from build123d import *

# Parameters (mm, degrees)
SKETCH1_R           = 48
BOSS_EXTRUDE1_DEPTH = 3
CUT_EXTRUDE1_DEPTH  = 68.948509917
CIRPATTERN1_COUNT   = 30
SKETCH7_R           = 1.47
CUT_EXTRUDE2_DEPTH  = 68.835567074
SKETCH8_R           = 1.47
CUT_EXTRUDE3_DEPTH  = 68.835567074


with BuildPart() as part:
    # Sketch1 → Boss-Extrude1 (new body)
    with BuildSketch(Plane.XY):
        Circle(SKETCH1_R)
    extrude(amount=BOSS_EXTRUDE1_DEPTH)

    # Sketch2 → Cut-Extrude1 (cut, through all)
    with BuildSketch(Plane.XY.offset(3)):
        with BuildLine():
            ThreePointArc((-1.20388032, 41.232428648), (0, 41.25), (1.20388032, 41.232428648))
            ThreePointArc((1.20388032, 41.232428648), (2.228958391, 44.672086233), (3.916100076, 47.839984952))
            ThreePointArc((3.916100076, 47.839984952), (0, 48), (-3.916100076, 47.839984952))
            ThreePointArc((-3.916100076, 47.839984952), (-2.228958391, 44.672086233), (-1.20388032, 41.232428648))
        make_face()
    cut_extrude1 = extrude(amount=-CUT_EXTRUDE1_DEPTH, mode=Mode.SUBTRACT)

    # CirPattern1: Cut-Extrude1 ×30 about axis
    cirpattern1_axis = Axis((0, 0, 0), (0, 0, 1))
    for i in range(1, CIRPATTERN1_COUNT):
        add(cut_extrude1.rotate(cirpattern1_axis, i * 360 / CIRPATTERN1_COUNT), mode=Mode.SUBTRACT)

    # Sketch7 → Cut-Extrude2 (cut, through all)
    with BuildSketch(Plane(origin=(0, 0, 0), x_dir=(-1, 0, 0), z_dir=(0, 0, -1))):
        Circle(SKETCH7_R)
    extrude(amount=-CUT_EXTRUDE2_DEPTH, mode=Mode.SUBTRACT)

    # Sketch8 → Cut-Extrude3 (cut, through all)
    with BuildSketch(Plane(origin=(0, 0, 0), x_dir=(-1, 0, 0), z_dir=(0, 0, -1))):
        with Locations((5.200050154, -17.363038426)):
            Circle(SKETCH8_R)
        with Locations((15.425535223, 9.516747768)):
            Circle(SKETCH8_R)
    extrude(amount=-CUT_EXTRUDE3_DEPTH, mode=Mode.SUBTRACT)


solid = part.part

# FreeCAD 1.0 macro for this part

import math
import FreeCAD as App
import Part
import Sketcher

V = App.Vector
Q = App.Units.Quantity

doc = App.newDocument("Part")
body = doc.addObject("PartDesign::Body", "Body")

sketch1 = body.newObject("Sketcher::SketchObject", "Sketch")
sketch1.AttachmentSupport = (doc.getObject("XY_Plane"), [""])
sketch1.MapMode = "FlatFace"
sketch1.addGeometry(Part.Circle(V(0, 0, 0), V(0, 0, 1), 48), False)
sketch1.addConstraint([
    Sketcher.Constraint("Coincident", 0, 3, -1, 1),
    Sketcher.Constraint("Diameter", 0, Q("96 mm")),
])
pad1 = body.newObject("PartDesign::Pad", "Pad")
pad1.Profile = sketch1
pad1.Length = 3

sketch2 = body.newObject("Sketcher::SketchObject", "Sketch001")
sketch2.AttachmentSupport = (doc.getObject("XY_Plane"), [""])
sketch2.MapMode = "FlatFace"
sketch2.AttachmentOffset = App.Placement(V(0, 0, 3), App.Rotation())
sketch2.addGeometry([
    Part.ArcOfCircle(Part.Circle(V(0, -0.000001, 0), V(0, 0, 1), 41.250001), math.radians(88.327587), math.radians(91.672413)),
    Part.ArcOfCircle(Part.Circle(V(18.88073, 37.836993, 0), V(0, 0, 1), 18), math.radians(146.239556), math.radians(169.126846)),
    Part.ArcOfCircle(Part.Circle(V(0, 0, 0), V(0, 0, 1), 48), math.radians(85.320299), math.radians(94.679701)),
    Part.ArcOfCircle(Part.Circle(V(-18.88073, 37.836993, 0), V(0, 0, 1), 18), math.radians(10.873154), math.radians(33.760444)),
], False)
sketch2.addConstraint([
    Sketcher.Constraint("Coincident", 0, 1, 1, 2),
    Sketcher.Constraint("Coincident", 1, 1, 2, 1),
    Sketcher.Constraint("Coincident", 2, 2, 3, 2),
    Sketcher.Constraint("Coincident", 3, 1, 0, 2),
    Sketcher.Constraint("Coincident", 0, 3, -1, 1),
    Sketcher.Constraint("Coincident", 2, 3, -1, 1),
    Sketcher.Constraint("Equal", 1, 3),
    Sketcher.Constraint("Symmetric", 1, 3, 3, 3, -2),
    Sketcher.Constraint("Radius", 1, Q("18 mm")),
    Sketcher.Constraint("Radius", 2, Q("48 mm")),
    Sketcher.Constraint("Radius", 0, Q("41.250001 mm")),
    Sketcher.Constraint("DistanceX", -1, 1, 1, 1, Q("3.9161 mm")),
    Sketcher.Constraint("DistanceX", -1, 1, 1, 3, Q("18.88073 mm")),
])
pocket1 = body.newObject("PartDesign::Pocket", "Pocket")
pocket1.Profile = sketch2
pocket1.Type = "ThroughAll"
doc.recompute()

polarpattern = body.newObject("PartDesign::PolarPattern", "PolarPattern")
polarpattern.Originals = [pocket1]
polarpattern.Axis = (doc.getObject("Z_Axis"), [""])
polarpattern.Angle = 360
polarpattern.Occurrences = 30
body.Tip = polarpattern

sketch3 = body.newObject("Sketcher::SketchObject", "Sketch002")
sketch3.AttachmentSupport = (doc.getObject("XY_Plane"), [""])
sketch3.MapMode = "FlatFace"
sketch3.addGeometry(Part.Circle(V(0, 0, 0), V(0, 0, 1), 1.47), False)
sketch3.addConstraint([
    Sketcher.Constraint("Coincident", 0, 3, -1, 1),
    Sketcher.Constraint("Diameter", 0, Q("2.94 mm")),
])
pocket2 = body.newObject("PartDesign::Pocket", "Pocket001")
pocket2.Profile = sketch3
pocket2.Type = "ThroughAll"
pocket2.Reversed = True

sketch4 = body.newObject("Sketcher::SketchObject", "Sketch003")
sketch4.AttachmentSupport = (doc.getObject("XY_Plane"), [""])
sketch4.MapMode = "FlatFace"
sketch4.addGeometry([
    Part.Circle(V(-5.20005, -17.363038, 0), V(0, 0, 1), 1.47),
    Part.Circle(V(-15.425535, 9.516748, 0), V(0, 0, 1), 1.47),
], False)
sketch4.addConstraint([
    Sketcher.Constraint("Equal", 0, 1),
    Sketcher.Constraint("Diameter", 0, Q("2.94 mm")),
    Sketcher.Constraint("DistanceX", 0, 3, -1, 1, Q("5.20005 mm")),
    Sketcher.Constraint("DistanceY", 0, 3, -1, 1, Q("17.363038 mm")),
    Sketcher.Constraint("DistanceX", 1, 3, -1, 1, Q("15.425535 mm")),
    Sketcher.Constraint("DistanceY", -1, 1, 1, 3, Q("9.516748 mm")),
])
pocket3 = body.newObject("PartDesign::Pocket", "Pocket002")
pocket3.Profile = sketch4
pocket3.Type = "ThroughAll"
pocket3.Reversed = True

doc.recompute()
